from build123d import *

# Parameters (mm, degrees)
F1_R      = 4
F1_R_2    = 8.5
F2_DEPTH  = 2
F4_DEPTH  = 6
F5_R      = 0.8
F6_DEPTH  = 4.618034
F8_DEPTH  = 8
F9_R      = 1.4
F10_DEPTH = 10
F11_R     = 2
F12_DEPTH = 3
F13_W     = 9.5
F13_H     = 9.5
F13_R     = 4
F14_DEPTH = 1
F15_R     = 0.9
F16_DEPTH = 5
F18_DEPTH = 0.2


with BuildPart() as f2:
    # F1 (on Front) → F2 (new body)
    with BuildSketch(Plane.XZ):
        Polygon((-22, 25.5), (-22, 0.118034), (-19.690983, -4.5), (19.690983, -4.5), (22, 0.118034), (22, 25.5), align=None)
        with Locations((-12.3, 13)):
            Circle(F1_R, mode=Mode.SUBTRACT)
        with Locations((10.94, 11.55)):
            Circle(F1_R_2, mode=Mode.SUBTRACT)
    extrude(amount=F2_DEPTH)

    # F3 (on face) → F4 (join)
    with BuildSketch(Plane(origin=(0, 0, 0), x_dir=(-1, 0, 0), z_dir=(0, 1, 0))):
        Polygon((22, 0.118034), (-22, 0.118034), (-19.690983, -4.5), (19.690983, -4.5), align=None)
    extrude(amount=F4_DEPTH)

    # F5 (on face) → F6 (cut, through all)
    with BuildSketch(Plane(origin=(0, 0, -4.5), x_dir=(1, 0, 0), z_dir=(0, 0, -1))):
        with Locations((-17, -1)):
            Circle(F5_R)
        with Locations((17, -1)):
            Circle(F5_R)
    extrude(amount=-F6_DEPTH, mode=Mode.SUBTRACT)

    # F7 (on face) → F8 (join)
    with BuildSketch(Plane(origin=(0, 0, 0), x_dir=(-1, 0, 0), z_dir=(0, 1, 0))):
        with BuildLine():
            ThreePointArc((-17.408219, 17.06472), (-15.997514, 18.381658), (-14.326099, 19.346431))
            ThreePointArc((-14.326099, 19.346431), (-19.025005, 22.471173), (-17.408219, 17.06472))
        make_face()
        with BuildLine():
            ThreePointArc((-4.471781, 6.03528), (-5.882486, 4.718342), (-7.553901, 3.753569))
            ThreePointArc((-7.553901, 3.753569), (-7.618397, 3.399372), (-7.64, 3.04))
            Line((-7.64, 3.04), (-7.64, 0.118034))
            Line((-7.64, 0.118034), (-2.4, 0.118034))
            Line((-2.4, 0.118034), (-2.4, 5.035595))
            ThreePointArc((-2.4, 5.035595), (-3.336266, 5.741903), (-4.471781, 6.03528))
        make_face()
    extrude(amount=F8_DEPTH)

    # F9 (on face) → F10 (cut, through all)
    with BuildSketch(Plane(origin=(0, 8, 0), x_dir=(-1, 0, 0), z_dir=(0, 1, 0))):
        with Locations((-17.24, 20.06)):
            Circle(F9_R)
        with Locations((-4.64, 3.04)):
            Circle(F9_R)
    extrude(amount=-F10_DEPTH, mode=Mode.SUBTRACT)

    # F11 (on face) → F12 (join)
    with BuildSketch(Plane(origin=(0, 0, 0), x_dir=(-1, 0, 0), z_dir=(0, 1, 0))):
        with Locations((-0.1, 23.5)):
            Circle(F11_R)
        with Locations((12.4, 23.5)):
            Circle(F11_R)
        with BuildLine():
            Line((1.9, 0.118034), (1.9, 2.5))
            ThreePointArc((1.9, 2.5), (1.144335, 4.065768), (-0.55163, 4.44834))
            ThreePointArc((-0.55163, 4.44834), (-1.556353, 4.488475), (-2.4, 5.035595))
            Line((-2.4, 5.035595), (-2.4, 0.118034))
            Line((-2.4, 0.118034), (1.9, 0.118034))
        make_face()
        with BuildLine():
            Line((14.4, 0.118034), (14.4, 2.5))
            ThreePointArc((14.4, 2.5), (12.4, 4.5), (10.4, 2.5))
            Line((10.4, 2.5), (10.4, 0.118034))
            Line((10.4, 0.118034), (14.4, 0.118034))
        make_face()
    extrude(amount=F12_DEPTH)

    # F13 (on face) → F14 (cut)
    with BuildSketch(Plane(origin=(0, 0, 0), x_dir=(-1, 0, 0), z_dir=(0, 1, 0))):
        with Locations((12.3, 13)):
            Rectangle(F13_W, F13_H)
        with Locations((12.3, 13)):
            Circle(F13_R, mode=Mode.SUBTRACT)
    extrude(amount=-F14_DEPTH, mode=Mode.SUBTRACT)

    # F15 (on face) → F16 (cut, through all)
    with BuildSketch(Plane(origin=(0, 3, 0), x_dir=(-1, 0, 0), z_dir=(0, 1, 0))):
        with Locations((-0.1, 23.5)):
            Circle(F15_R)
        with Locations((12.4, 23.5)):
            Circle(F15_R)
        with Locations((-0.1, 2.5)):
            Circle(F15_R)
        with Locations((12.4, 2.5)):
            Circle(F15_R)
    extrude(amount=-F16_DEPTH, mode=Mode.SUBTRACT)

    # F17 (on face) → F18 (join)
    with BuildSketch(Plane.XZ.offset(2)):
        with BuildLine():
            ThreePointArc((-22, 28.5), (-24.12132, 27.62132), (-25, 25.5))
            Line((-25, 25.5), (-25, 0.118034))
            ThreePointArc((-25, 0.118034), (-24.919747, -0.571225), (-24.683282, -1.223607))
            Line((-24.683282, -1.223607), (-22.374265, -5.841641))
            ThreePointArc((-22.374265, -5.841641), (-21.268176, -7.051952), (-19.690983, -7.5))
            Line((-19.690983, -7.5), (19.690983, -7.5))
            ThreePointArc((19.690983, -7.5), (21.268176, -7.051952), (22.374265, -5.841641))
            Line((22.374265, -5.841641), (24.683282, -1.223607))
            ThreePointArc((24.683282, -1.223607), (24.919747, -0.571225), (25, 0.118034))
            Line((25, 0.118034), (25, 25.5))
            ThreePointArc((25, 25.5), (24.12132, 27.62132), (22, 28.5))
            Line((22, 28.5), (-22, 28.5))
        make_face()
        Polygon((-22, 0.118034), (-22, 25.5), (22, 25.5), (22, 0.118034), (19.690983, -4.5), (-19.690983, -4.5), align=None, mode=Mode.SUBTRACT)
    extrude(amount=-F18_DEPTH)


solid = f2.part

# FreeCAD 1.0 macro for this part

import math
import FreeCAD as App
import Part
import Sketcher
Q = App.Units.Quantity

doc = App.newDocument("Part")
params = doc.addObject("Spreadsheet::Sheet", "Params")
for row, (alias, value) in enumerate([
    ("sketch1_diameter", "8 mm"),
    ("sketch1_diameter2", "17 mm"),
    ("sketch1_width", "44 mm"),
    ("pad1_length", "2 mm"),
    ("sketch2_width", "44 mm"),
    ("pad2_length", "6 mm"),
    ("sketch3_diameter", "1.6 mm"),
    ("sketch4_radius", "3 mm"),
    ("sketch4_radius2", "8.499998 mm"),
    ("sketch4_width", "5.24 mm"),
    ("pad3_length", "8 mm"),
    ("sketch5_diameter", "2.8 mm"),
    ("sketch6_diameter", "4 mm"),
    ("sketch6_width", "4.3 mm"),
    ("pad4_length", "3 mm"),
    ("sketch7_diameter", "8 mm"),
    ("sketch7_width", "9.5 mm"),
    ("pocket3_length", "1 mm"),
    ("sketch8_diameter", "1.8 mm"),
    ("sketch9_radius", "3.000001 mm"),
    ("sketch9_width", "44 mm"),
    ("pad5_length", "0.2 mm"),
], start=1):
    params.set(f"A{row}", alias)
    params.set(f"B{row}", "=" + value)
    params.setAlias(f"B{row}", alias)

body = doc.addObject("PartDesign::Body", "Body")

# Sketch on XZ plane
sketch1 = body.newObject("Sketcher::SketchObject", "Sketch")
sketch1.AttachmentSupport = (doc.getObject("XZ_Plane"), [""])
sketch1.MapMode = "FlatFace"
sketch1.addGeometry([
    Part.LineSegment(App.Vector(-22, 25.5, 0), App.Vector(-22, 0.1, 0)),  # 0
    Part.LineSegment(App.Vector(-22, 0.1, 0), App.Vector(-19.7, -4.5, 0)),  # 1
    Part.LineSegment(App.Vector(-19.7, -4.5, 0), App.Vector(19.7, -4.5, 0)),  # 2
    Part.LineSegment(App.Vector(19.7, -4.5, 0), App.Vector(22, 0.1, 0)),  # 3
    Part.LineSegment(App.Vector(22, 0.1, 0), App.Vector(22, 25.5, 0)),  # 4
    Part.LineSegment(App.Vector(22, 25.5, 0), App.Vector(-22, 25.5, 0)),  # 5
    Part.Circle(App.Vector(-12.3, 13, 0), App.Vector(0, 0, 1), 4),  # 6
    Part.Circle(App.Vector(10.9, 11.6, 0), App.Vector(0, 0, 1), 8.5),  # 7
], False)
sketch1.addConstraint([
    Sketcher.Constraint("Coincident", 0, 2, 1, 1),
    Sketcher.Constraint("Coincident", 1, 2, 2, 1),
    Sketcher.Constraint("Coincident", 2, 2, 3, 1),
    Sketcher.Constraint("Coincident", 3, 2, 4, 1),
    Sketcher.Constraint("Coincident", 4, 2, 5, 1),
    Sketcher.Constraint("Coincident", 5, 2, 0, 1),
    Sketcher.Constraint("Vertical", 0),
    Sketcher.Constraint("Horizontal", 2),
    Sketcher.Constraint("Vertical", 4),
    Sketcher.Constraint("Horizontal", 5),
    Sketcher.Constraint("Symmetric", 0, 2, 3, 2, -2),
    Sketcher.Constraint("Equal", 1, 3),
    Sketcher.Constraint("Diameter", 6, Q("8 mm")),
    Sketcher.Constraint("Diameter", 7, Q("17 mm")),
    Sketcher.Constraint("DistanceX", 5, 2, 5, 1, Q("44 mm")),
    Sketcher.Constraint("DistanceY", -1, 1, 6, 3, Q("13 mm")),
    Sketcher.Constraint("DistanceY", 2, 2, 4, 2, Q("30 mm")),
    Sketcher.Constraint("DistanceX", 6, 3, -1, 1, Q("12.3 mm")),
    Sketcher.Constraint("DistanceY", 1, 2, -1, 1, Q("4.5 mm")),
    Sketcher.Constraint("DistanceX", -1, 1, 7, 3, Q("10.94 mm")),
    Sketcher.Constraint("DistanceY", -1, 1, 7, 3, Q("11.55 mm")),
    Sketcher.Constraint("Distance", 1, Q("5.163119 mm")),
    Sketcher.Constraint("DistanceX", 2, 1, 2, 2, Q("39.381966 mm")),
])
sketch1.setExpression("Constraints[12]", "Params.sketch1_diameter")
sketch1.setExpression("Constraints[13]", "Params.sketch1_diameter2")
sketch1.setExpression("Constraints[14]", "Params.sketch1_width")
pad1 = body.newObject("PartDesign::Pad", "Pad")
pad1.Profile = sketch1
pad1.setExpression("Length", "Params.pad1_length")

# Sketch on XZ plane
sketch2 = body.newObject("Sketcher::SketchObject", "Sketch001")
sketch2.AttachmentSupport = (doc.getObject("XZ_Plane"), [""])
sketch2.MapMode = "FlatFace"
sketch2.addGeometry([
    Part.LineSegment(App.Vector(-22, 0, 0), App.Vector(22, 0, 0)),
    Part.LineSegment(App.Vector(22, 0, 0), App.Vector(20, -4, 0)),
    Part.LineSegment(App.Vector(20, -4, 0), App.Vector(-20, -4, 0)),
    Part.LineSegment(App.Vector(-20, -4, 0), App.Vector(-22, 0, 0)),
], False)
sketch2.addConstraint([
    Sketcher.Constraint("Coincident", 0, 2, 1, 1),
    Sketcher.Constraint("Coincident", 1, 2, 2, 1),
    Sketcher.Constraint("Coincident", 2, 2, 3, 1),
    Sketcher.Constraint("Coincident", 3, 2, 0, 1),
    Sketcher.Constraint("Horizontal", 0),
    Sketcher.Constraint("Horizontal", 2),
    Sketcher.Constraint("Equal", 1, 3),
    Sketcher.Constraint("DistanceX", 0, 1, 0, 2, Q("44 mm")),
    Sketcher.Constraint("DistanceX", -1, 1, 0, 2, Q("22 mm")),
    Sketcher.Constraint("DistanceY", 1, 2, -1, 1, Q("4.5 mm")),
    Sketcher.Constraint("Distance", 1, Q("5.163119 mm")),
    Sketcher.Constraint("DistanceX", 2, 2, 2, 1, Q("39.381966 mm")),
])
sketch2.setExpression("Constraints[7]", "Params.sketch2_width")
pad2 = body.newObject("PartDesign::Pad", "Pad001")
pad2.Profile = sketch2
pad2.setExpression("Length", "Params.pad2_length")
pad2.Reversed = True

# Sketch on XY plane
sketch3 = body.newObject("Sketcher::SketchObject", "Sketch002")
sketch3.AttachmentSupport = (doc.getObject("XY_Plane"), [""])
sketch3.MapMode = "FlatFace"
sketch3.AttachmentOffset = App.Placement(App.Vector(0, 0, -4.5), App.Rotation())
sketch3.addGeometry([
    Part.Circle(App.Vector(-17, 1, 0), App.Vector(0, 0, 1), 0.8),
    Part.Circle(App.Vector(17, 1, 0), App.Vector(0, 0, 1), 0.8),
], False)
sketch3.addConstraint([
    Sketcher.Constraint("Equal", 0, 1),
    Sketcher.Constraint("Symmetric", 0, 3, 1, 3, -2),
    Sketcher.Constraint("Diameter", 0, Q("1.6 mm")),
    Sketcher.Constraint("DistanceX", 0, 3, -1, 1, Q("17 mm")),
    Sketcher.Constraint("DistanceY", -1, 1, 0, 3, Q("1 mm")),
])
sketch3.setExpression("Constraints[2]", "Params.sketch3_diameter")
pocket1 = body.newObject("PartDesign::Pocket", "Pocket")
pocket1.Profile = sketch3
pocket1.Type = "ThroughAll"
pocket1.Reversed = True

# Sketch on XZ plane
sketch4 = body.newObject("Sketcher::SketchObject", "Sketch003")
sketch4.AttachmentSupport = (doc.getObject("XZ_Plane"), [""])
sketch4.MapMode = "FlatFace"
sketch4.addGeometry([
    Part.ArcOfCircle(Part.Circle(App.Vector(10.9, 11.6, 0), App.Vector(0, 0, 1), 8.5), math.radians(40), math.radians(67)),  # 0
    Part.ArcOfCircle(Part.Circle(App.Vector(17.2, 20.1, 0), App.Vector(0, 0, 1), 3), math.radians(-87), math.radians(194)),  # 1
    Part.ArcOfCircle(Part.Circle(App.Vector(10.9, 11.5, 0), App.Vector(0, 0, 1), 8.5), math.radians(-140), math.radians(-113)),  # 2
    Part.ArcOfCircle(Part.Circle(App.Vector(4.6, 3, 0), App.Vector(0, 0, 1), 3), math.radians(0), math.radians(13.76)),  # 3
    Part.LineSegment(App.Vector(7.6, 3, 0), App.Vector(7.6, 0.1, 0)),  # 4
    Part.LineSegment(App.Vector(7.6, 0.1, 0), App.Vector(2.4, 0.1, 0)),  # 5
    Part.LineSegment(App.Vector(2.4, 0.1, 0), App.Vector(2.4, 5, 0)),  # 6
    Part.ArcOfCircle(Part.Circle(App.Vector(4.6, 3, 0), App.Vector(0, 0, 1), 3), math.radians(93), math.radians(138)),  # 7
], False)
sketch4.addConstraint([
    Sketcher.Constraint("Coincident", 0, 1, 1, 1),
    Sketcher.Constraint("Coincident", 1, 2, 0, 2),
    Sketcher.Constraint("Coincident", 2, 2, 3, 2),
    Sketcher.Constraint("Coincident", 3, 1, 4, 1),
    Sketcher.Constraint("Coincident", 4, 2, 5, 1),
    Sketcher.Constraint("Coincident", 5, 2, 6, 1),
    Sketcher.Constraint("Coincident", 6, 2, 7, 2),
    Sketcher.Constraint("Coincident", 7, 1, 2, 1),
    Sketcher.Constraint("Vertical", 4),
    Sketcher.Constraint("Horizontal", 5),
    Sketcher.Constraint("Vertical", 6),
    Sketcher.Constraint("Coincident", 2, 3, 0, 3),
    Sketcher.Constraint("Equal", 0, 2),
    Sketcher.Constraint("Radius", 1, Q("3 mm")),
    Sketcher.Constraint("Radius", 0, Q("8.499998 mm")),
    Sketcher.Constraint("DistanceX", 5, 2, 5, 1, Q("5.24 mm")),
    Sketcher.Constraint("DistanceX", -1, 1, 5, 2, Q("2.4 mm")),
    Sketcher.Constraint("DistanceX", 0, 3, 1, 3, Q("6.3 mm")),
    Sketcher.Constraint("DistanceX", 3, 1, 2, 3, Q("3.3 mm")),
    Sketcher.Constraint("DistanceY", -1, 1, 0, 3, Q("11.550002 mm")),
    Sketcher.Constraint("DistanceY", -1, 1, 1, 3, Q("20.06 mm")),
    Sketcher.Constraint("DistanceY", -1, 1, 3, 1, Q("3.04 mm")),
    Sketcher.Constraint("Radius", 3, Q("3.000068 mm")),
    Sketcher.Constraint("Radius", 7, Q("2.999995 mm")),
    Sketcher.Constraint("DistanceY", 6, 1, 6, 2, Q("4.917561 mm")),
    Sketcher.Constraint("DistanceX", -1, 1, 2, 2, Q("7.553901 mm")),
    Sketcher.Constraint("DistanceX", 7, 3, 1, 2, Q("9.686101 mm")),
    Sketcher.Constraint("DistanceY", 4, 2, 4, 1, Q("2.921966 mm")),
])
sketch4.setExpression("Constraints[13]", "Params.sketch4_radius")
sketch4.setExpression("Constraints[14]", "Params.sketch4_radius2")
sketch4.setExpression("Constraints[15]", "Params.sketch4_width")
pad3 = body.newObject("PartDesign::Pad", "Pad002")
pad3.Profile = sketch4
pad3.setExpression("Length", "Params.pad3_length")
pad3.Reversed = True

# Sketch on XZ plane
sketch5 = body.newObject("Sketcher::SketchObject", "Sketch004")
sketch5.AttachmentSupport = (doc.getObject("XZ_Plane"), [""])
sketch5.MapMode = "FlatFace"
sketch5.AttachmentOffset = App.Placement(App.Vector(0, 0, -8), App.Rotation())
sketch5.addGeometry([
    Part.Circle(App.Vector(17.2, 20.1, 0), App.Vector(0, 0, 1), 1.4),
    Part.Circle(App.Vector(4.6, 3, 0), App.Vector(0, 0, 1), 1.4),
], False)
sketch5.addConstraint([
    Sketcher.Constraint("Equal", 0, 1),
    Sketcher.Constraint("Diameter", 0, Q("2.8 mm")),
    Sketcher.Constraint("DistanceX", 1, 3, 0, 3, Q("12.6 mm")),
    Sketcher.Constraint("DistanceX", -1, 1, 0, 3, Q("17.24 mm")),
    Sketcher.Constraint("DistanceY", -1, 1, 0, 3, Q("20.06 mm")),
    Sketcher.Constraint("DistanceY", -1, 1, 1, 3, Q("3.04 mm")),
])
sketch5.setExpression("Constraints[1]", "Params.sketch5_diameter")
pocket2 = body.newObject("PartDesign::Pocket", "Pocket001")
pocket2.Profile = sketch5
pocket2.Type = "ThroughAll"
pocket2.Reversed = True

# Sketch on XZ plane
sketch6 = body.newObject("Sketcher::SketchObject", "Sketch005")
sketch6.AttachmentSupport = (doc.getObject("XZ_Plane"), [""])
sketch6.MapMode = "FlatFace"
sketch6.addGeometry([
    Part.Circle(App.Vector(0.1, 23.5, 0), App.Vector(0, 0, 1), 2),  # 0
    Part.Circle(App.Vector(-12.4, 23.5, 0), App.Vector(0, 0, 1), 2),  # 1
    Part.LineSegment(App.Vector(-1.9, 0.1, 0), App.Vector(-1.9, 2.5, 0)),  # 2
    Part.ArcOfCircle(Part.Circle(App.Vector(0.1, 2.5, 0), App.Vector(0, 0, 1), 2), math.radians(77), math.radians(180)),  # 3
    Part.ArcOfCircle(Part.Circle(App.Vector(1, 6.3, 0), App.Vector(0, 0, 1), 1.9), math.radians(-103), math.radians(-42)),  # 4
    Part.LineSegment(App.Vector(2.4, 5, 0), App.Vector(2.4, 0.1, 0)),  # 5
    Part.LineSegment(App.Vector(2.4, 0.1, 0), App.Vector(-1.9, 0.1, 0)),  # 6
    Part.LineSegment(App.Vector(-14.4, 0.1, 0), App.Vector(-14.4, 2.5, 0)),  # 7
    Part.ArcOfCircle(Part.Circle(App.Vector(-12.4, 2.5, 0), App.Vector(0, 0, 1), 2), math.radians(0), math.radians(180)),  # 8
    Part.LineSegment(App.Vector(-10.4, 2.5, 0), App.Vector(-10.4, 0.1, 0)),  # 9
    Part.LineSegment(App.Vector(-10.4, 0.1, 0), App.Vector(-14.4, 0.1, 0)),  # 10
], False)
sketch6.addConstraint([
    Sketcher.Constraint("Tangent", 2, 2, 3, 2),
    Sketcher.Constraint("Tangent", 3, 1, 4, 1),
    Sketcher.Constraint("Coincident", 4, 2, 5, 1),
    Sketcher.Constraint("Coincident", 5, 2, 6, 1),
    Sketcher.Constraint("Coincident", 6, 2, 2, 1),
    Sketcher.Constraint("Tangent", 7, 2, 8, 2),
    Sketcher.Constraint("Tangent", 8, 1, 9, 1),
    Sketcher.Constraint("Coincident", 9, 2, 10, 1),
    Sketcher.Constraint("Coincident", 10, 2, 7, 1),
    Sketcher.Constraint("Vertical", 2),
    Sketcher.Constraint("Vertical", 5),
    Sketcher.Constraint("Horizontal", 6),
    Sketcher.Constraint("Vertical", 7),
    Sketcher.Constraint("Vertical", 9),
    Sketcher.Constraint("Horizontal", 10),
    Sketcher.Constraint("Equal", 0, 1),
    Sketcher.Constraint("Equal", 1, 3),
    Sketcher.Constraint("Equal", 3, 8),
    Sketcher.Constraint("Horizontal", 0, 3, 1, 3),
    Sketcher.Constraint("Horizontal", 3, 3, 8, 3),
    Sketcher.Constraint("Horizontal", 6, 2, 9, 2),
    Sketcher.Constraint("Vertical", 0, 3, 3, 3),
    Sketcher.Constraint("Vertical", 1, 3, 8, 3),
    Sketcher.Constraint("Diameter", 0, Q("4 mm")),
    Sketcher.Constraint("DistanceX", 6, 2, 6, 1, Q("4.3 mm")),
    Sketcher.Constraint("DistanceY", 3, 3, 0, 3, Q("21 mm")),
    Sketcher.Constraint("DistanceX", -1, 1, 0, 3, Q("0.1 mm")),
    Sketcher.Constraint("DistanceY", -1, 1, 0, 3, Q("23.5 mm")),
    Sketcher.Constraint("DistanceX", 1, 3, -1, 1, Q("12.4 mm")),
    Sketcher.Constraint("Radius", 4, Q("1.900676 mm")),
    Sketcher.Constraint("DistanceY", 5, 2, 5, 1, Q("4.917561 mm")),
    Sketcher.Constraint("DistanceX", 3, 1, 4, 3, Q("0.429199 mm")),
])
sketch6.setExpression("Constraints[23]", "Params.sketch6_diameter")
sketch6.setExpression("Constraints[24]", "Params.sketch6_width")
pad4 = body.newObject("PartDesign::Pad", "Pad003")
pad4.Profile = sketch6
pad4.setExpression("Length", "Params.pad4_length")
pad4.Reversed = True

# Sketch on XZ plane
sketch7 = body.newObject("Sketcher::SketchObject", "Sketch006")
sketch7.AttachmentSupport = (doc.getObject("XZ_Plane"), [""])
sketch7.MapMode = "FlatFace"
sketch7.addGeometry([
    Part.LineSegment(App.Vector(-7.5, 17.8, 0), App.Vector(-7.5, 8.2, 0)),  # 0
    Part.LineSegment(App.Vector(-7.5, 8.2, 0), App.Vector(-17.1, 8.2, 0)),  # 1
    Part.LineSegment(App.Vector(-17.1, 8.2, 0), App.Vector(-17.1, 17.8, 0)),  # 2
    Part.LineSegment(App.Vector(-17.1, 17.8, 0), App.Vector(-7.5, 17.8, 0)),  # 3
    Part.Circle(App.Vector(-12.3, 13, 0), App.Vector(0, 0, 1), 4),  # 4
], False)
sketch7.addConstraint([
    Sketcher.Constraint("Coincident", 0, 2, 1, 1),
    Sketcher.Constraint("Coincident", 1, 2, 2, 1),
    Sketcher.Constraint("Coincident", 2, 2, 3, 1),
    Sketcher.Constraint("Coincident", 3, 2, 0, 1),
    Sketcher.Constraint("Vertical", 0),
    Sketcher.Constraint("Horizontal", 1),
    Sketcher.Constraint("Vertical", 2),
    Sketcher.Constraint("Horizontal", 3),
    Sketcher.Constraint("Equal", 3, 0),
    Sketcher.Constraint("Diameter", 4, Q("8 mm")),
    Sketcher.Constraint("DistanceX", 1, 2, 1, 1, Q("9.5 mm")),
    Sketcher.Constraint("DistanceY", -1, 1, 4, 3, Q("13 mm")),
    Sketcher.Constraint("DistanceX", 4, 3, -1, 1, Q("12.3 mm")),
    Sketcher.Constraint("DistanceX", 0, 2, -1, 1, Q("7.55 mm")),
    Sketcher.Constraint("DistanceY", -1, 1, 0, 2, Q("8.25 mm")),
])
sketch7.setExpression("Constraints[9]", "Params.sketch7_diameter")
sketch7.setExpression("Constraints[10]", "Params.sketch7_width")
pocket3 = body.newObject("PartDesign::Pocket", "Pocket002")
pocket3.Profile = sketch7
pocket3.setExpression("Length", "Params.pocket3_length")
pocket3.Reversed = True

# Sketch on XZ plane
sketch8 = body.newObject("Sketcher::SketchObject", "Sketch007")
sketch8.AttachmentSupport = (doc.getObject("XZ_Plane"), [""])
sketch8.MapMode = "FlatFace"
sketch8.AttachmentOffset = App.Placement(App.Vector(0, 0, -3), App.Rotation())
sketch8.addGeometry([
    Part.Circle(App.Vector(0.1, 23.5, 0), App.Vector(0, 0, 1), 0.9),
    Part.Circle(App.Vector(-12.4, 23.5, 0), App.Vector(0, 0, 1), 0.9),
    Part.Circle(App.Vector(0.1, 2.5, 0), App.Vector(0, 0, 1), 0.9),
    Part.Circle(App.Vector(-12.4, 2.5, 0), App.Vector(0, 0, 1), 0.9),
], False)
sketch8.addConstraint([
    Sketcher.Constraint("Equal", 0, 1),
    Sketcher.Constraint("Equal", 1, 2),
    Sketcher.Constraint("Equal", 2, 3),
    Sketcher.Constraint("Horizontal", 0, 3, 1, 3),
    Sketcher.Constraint("Horizontal", 2, 3, 3, 3),
    Sketcher.Constraint("Vertical", 0, 3, 2, 3),
    Sketcher.Constraint("Vertical", 1, 3, 3, 3),
    Sketcher.Constraint("Diameter", 0, Q("1.8 mm")),
    Sketcher.Constraint("DistanceY", 2, 3, 0, 3, Q("21 mm")),
    Sketcher.Constraint("DistanceX", -1, 1, 0, 3, Q("0.1 mm")),
    Sketcher.Constraint("DistanceY", -1, 1, 0, 3, Q("23.5 mm")),
    Sketcher.Constraint("DistanceX", 1, 3, -1, 1, Q("12.4 mm")),
])
sketch8.setExpression("Constraints[7]", "Params.sketch8_diameter")
pocket4 = body.newObject("PartDesign::Pocket", "Pocket003")
pocket4.Profile = sketch8
pocket4.Type = "ThroughAll"
pocket4.Reversed = True

# Sketch on XZ plane
sketch9 = body.newObject("Sketcher::SketchObject", "Sketch008")
sketch9.AttachmentSupport = (doc.getObject("XZ_Plane"), [""])
sketch9.MapMode = "FlatFace"
sketch9.AttachmentOffset = App.Placement(App.Vector(0, 0, 2), App.Rotation())
sketch9.addGeometry([
    Part.ArcOfCircle(Part.Circle(App.Vector(-22, 25.5, 0), App.Vector(0, 0, 1), 3), math.radians(90), math.radians(180)),  # 0
    Part.LineSegment(App.Vector(-25, 25.5, 0), App.Vector(-25, 0.1, 0)),  # 1
    Part.ArcOfCircle(Part.Circle(App.Vector(-22, 0.1, 0), App.Vector(0, 0, 1), 3), math.radians(-180), math.radians(-153)),  # 2
    Part.LineSegment(App.Vector(-24.7, -1.2, 0), App.Vector(-22.4, -5.8, 0)),  # 3
    Part.ArcOfCircle(Part.Circle(App.Vector(-19.7, -4.5, 0), App.Vector(0, 0, 1), 3), math.radians(-153), math.radians(-90)),  # 4
    Part.LineSegment(App.Vector(-19.7, -7.5, 0), App.Vector(19.7, -7.5, 0)),  # 5
    Part.ArcOfCircle(Part.Circle(App.Vector(19.7, -4.5, 0), App.Vector(0, 0, 1), 3), math.radians(-90), math.radians(-27)),  # 6
    Part.LineSegment(App.Vector(22.4, -5.8, 0), App.Vector(24.7, -1.2, 0)),  # 7
    Part.ArcOfCircle(Part.Circle(App.Vector(22, 0.1, 0), App.Vector(0, 0, 1), 3), math.radians(-27), math.radians(0)),  # 8
    Part.LineSegment(App.Vector(25, 0.1, 0), App.Vector(25, 25.5, 0)),  # 9
    Part.ArcOfCircle(Part.Circle(App.Vector(22, 25.5, 0), App.Vector(0, 0, 1), 3), math.radians(0), math.radians(90)),  # 10
    Part.LineSegment(App.Vector(22, 28.5, 0), App.Vector(-22, 28.5, 0)),  # 11
    Part.LineSegment(App.Vector(-19.7, -4.5, 0), App.Vector(-22, 0.1, 0)),  # 12
    Part.LineSegment(App.Vector(-22, 0.1, 0), App.Vector(-22, 25.5, 0)),  # 13
    Part.LineSegment(App.Vector(-22, 25.5, 0), App.Vector(22, 25.5, 0)),  # 14
    Part.LineSegment(App.Vector(22, 25.5, 0), App.Vector(22, 0.1, 0)),  # 15
    Part.LineSegment(App.Vector(22, 0.1, 0), App.Vector(19.7, -4.5, 0)),  # 16
    Part.LineSegment(App.Vector(19.7, -4.5, 0), App.Vector(-19.7, -4.5, 0)),  # 17
], False)
sketch9.addConstraint([
    Sketcher.Constraint("Tangent", 0, 2, 1, 1),
    Sketcher.Constraint("Tangent", 1, 2, 2, 1),
    Sketcher.Constraint("Tangent", 2, 2, 3, 1),
    Sketcher.Constraint("Tangent", 3, 2, 4, 1),
    Sketcher.Constraint("Tangent", 4, 2, 5, 1),
    Sketcher.Constraint("Tangent", 5, 2, 6, 1),
    Sketcher.Constraint("Tangent", 6, 2, 7, 1),
    Sketcher.Constraint("Tangent", 7, 2, 8, 1),
    Sketcher.Constraint("Tangent", 8, 2, 9, 1),
    Sketcher.Constraint("Tangent", 9, 2, 10, 1),
    Sketcher.Constraint("Tangent", 10, 2, 11, 1),
    Sketcher.Constraint("Tangent", 11, 2, 0, 1),
    Sketcher.Constraint("Coincident", 12, 2, 13, 1),
    Sketcher.Constraint("Coincident", 13, 2, 14, 1),
    Sketcher.Constraint("Coincident", 14, 2, 15, 1),
    Sketcher.Constraint("Coincident", 15, 2, 16, 1),
    Sketcher.Constraint("Coincident", 16, 2, 17, 1),
    Sketcher.Constraint("Coincident", 17, 2, 12, 1),
    Sketcher.Constraint("Vertical", 1),
    Sketcher.Constraint("Horizontal", 5),
    Sketcher.Constraint("Vertical", 9),
    Sketcher.Constraint("Horizontal", 11),
    Sketcher.Constraint("Vertical", 13),
    Sketcher.Constraint("Horizontal", 14),
    Sketcher.Constraint("Vertical", 15),
    Sketcher.Constraint("Horizontal", 17),
    Sketcher.Constraint("Coincident", 12, 2, 2, 3),
    Sketcher.Constraint("Coincident", 13, 2, 0, 3),
    Sketcher.Constraint("Coincident", 14, 2, 10, 3),
    Sketcher.Constraint("Coincident", 15, 2, 8, 3),
    Sketcher.Constraint("Coincident", 16, 2, 6, 3),
    Sketcher.Constraint("Coincident", 17, 2, 4, 3),
    Sketcher.Constraint("Equal", 2, 4),
    Sketcher.Constraint("Symmetric", 2, 3, 8, 3, -2),
    Sketcher.Constraint("Horizontal", 3, 2, 6, 2),
    Sketcher.Constraint("Radius", 0, Q("3.000001 mm")),
    Sketcher.Constraint("DistanceX", 11, 2, 11, 1, Q("44 mm")),
    Sketcher.Constraint("DistanceY", 5, 2, 10, 3, Q("32.999999 mm")),
    Sketcher.Constraint("DistanceY", -1, 1, 0, 3, Q("25.499999 mm")),
    Sketcher.Constraint("DistanceX", 2, 2, 4, 3, Q("4.992301 mm")),
    Sketcher.Constraint("Distance", 3, Q("5.163119 mm")),
])
sketch9.setExpression("Constraints[35]", "Params.sketch9_radius")
sketch9.setExpression("Constraints[36]", "Params.sketch9_width")
pad5 = body.newObject("PartDesign::Pad", "Pad004")
pad5.Profile = sketch9
pad5.setExpression("Length", "Params.pad5_length")
pad5.Reversed = True

doc.recompute()
